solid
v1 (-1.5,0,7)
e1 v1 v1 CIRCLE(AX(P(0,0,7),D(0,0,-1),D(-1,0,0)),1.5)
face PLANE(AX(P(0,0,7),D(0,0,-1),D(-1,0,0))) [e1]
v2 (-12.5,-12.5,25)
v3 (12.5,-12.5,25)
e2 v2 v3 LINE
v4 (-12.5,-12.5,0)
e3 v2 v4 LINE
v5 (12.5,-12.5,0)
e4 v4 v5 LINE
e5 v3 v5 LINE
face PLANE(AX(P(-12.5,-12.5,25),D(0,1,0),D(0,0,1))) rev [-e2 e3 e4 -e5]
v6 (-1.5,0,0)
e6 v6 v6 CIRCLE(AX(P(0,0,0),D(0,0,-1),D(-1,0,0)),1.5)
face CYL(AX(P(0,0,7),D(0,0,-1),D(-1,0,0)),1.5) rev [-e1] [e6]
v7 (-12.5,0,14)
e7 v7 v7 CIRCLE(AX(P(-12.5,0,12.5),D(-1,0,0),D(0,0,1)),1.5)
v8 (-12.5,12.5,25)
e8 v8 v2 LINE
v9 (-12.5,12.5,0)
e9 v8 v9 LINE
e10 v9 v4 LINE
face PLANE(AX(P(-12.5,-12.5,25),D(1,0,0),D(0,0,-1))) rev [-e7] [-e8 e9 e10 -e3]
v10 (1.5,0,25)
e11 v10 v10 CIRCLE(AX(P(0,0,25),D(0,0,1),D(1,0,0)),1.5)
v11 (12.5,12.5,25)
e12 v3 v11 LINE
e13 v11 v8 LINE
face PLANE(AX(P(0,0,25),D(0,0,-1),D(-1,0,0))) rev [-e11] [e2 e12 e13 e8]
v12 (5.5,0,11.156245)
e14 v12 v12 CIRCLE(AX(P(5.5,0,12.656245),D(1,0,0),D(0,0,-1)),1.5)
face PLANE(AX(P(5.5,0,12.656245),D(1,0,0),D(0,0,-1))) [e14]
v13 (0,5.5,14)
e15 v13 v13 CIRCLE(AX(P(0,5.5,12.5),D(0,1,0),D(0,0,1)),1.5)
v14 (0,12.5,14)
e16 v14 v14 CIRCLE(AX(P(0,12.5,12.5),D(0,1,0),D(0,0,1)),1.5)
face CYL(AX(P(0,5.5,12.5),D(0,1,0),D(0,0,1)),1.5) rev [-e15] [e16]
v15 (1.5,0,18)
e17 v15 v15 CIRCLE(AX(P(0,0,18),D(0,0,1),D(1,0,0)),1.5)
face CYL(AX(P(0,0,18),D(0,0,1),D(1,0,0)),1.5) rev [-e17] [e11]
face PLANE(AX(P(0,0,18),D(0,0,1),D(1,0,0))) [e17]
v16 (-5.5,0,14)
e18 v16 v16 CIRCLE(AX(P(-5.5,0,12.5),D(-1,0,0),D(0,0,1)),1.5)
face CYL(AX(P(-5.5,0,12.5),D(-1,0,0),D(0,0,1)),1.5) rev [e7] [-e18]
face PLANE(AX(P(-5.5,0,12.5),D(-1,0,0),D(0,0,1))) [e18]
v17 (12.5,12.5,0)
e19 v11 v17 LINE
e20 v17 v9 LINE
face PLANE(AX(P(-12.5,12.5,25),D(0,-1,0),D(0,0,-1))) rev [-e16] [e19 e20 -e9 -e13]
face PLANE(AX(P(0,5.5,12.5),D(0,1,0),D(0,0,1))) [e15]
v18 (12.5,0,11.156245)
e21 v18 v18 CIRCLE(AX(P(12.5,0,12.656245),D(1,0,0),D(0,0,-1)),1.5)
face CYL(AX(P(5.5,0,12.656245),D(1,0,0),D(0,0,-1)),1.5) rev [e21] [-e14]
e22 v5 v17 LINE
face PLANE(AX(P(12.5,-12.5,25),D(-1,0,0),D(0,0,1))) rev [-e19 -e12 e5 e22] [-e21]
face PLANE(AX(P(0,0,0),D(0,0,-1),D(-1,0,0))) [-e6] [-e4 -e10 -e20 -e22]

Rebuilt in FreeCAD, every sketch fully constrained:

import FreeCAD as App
import Part
import Sketcher

V = App.Vector
Q = App.Units.Quantity


def add_polygon(sketch, points):
    """Adds a closed chain of lines whose ends are joined by coincident constraints."""
    first, n = sketch.GeometryCount, len(points)
    for a, b in zip(points, points[1:] + points[:1]):
        sketch.addGeometry(Part.LineSegment(App.Vector(*a, 0), App.Vector(*b, 0)), False)
    for i in range(n):
        sketch.addConstraint(Sketcher.Constraint("Coincident", first + i, 2, first + (i + 1) % n, 1))

doc = App.newDocument("Part")
params = doc.addObject("Spreadsheet::Sheet", "Params")
for row, (alias, value) in enumerate([
    ("sketch1_width", "25 mm"),
    ("pad1_length", "25 mm"),
    ("sketch2_diameter", "3 mm"),
    ("pocket1_length", "7 mm"),
    ("sketch3_diameter", "3 mm"),
    ("pocket2_length", "7 mm"),
    ("sketch4_diameter", "3 mm"),
    ("pocket3_length", "7 mm"),
    ("sketch5_diameter", "3 mm"),
    ("pocket4_length", "7 mm"),
    ("sketch6_diameter", "3 mm"),
    ("pocket5_length", "7 mm"),
], start=1):
    params.set(f"A{row}", alias)
    params.set(f"B{row}", "=" + value)
    params.setAlias(f"B{row}", alias)

body = doc.addObject("PartDesign::Body", "Body")

# Sketch on XY plane
sketch1 = doc.addObject("Sketcher::SketchObject", "Sketch")
body.addObject(sketch1)
sketch1.AttachmentSupport = (doc.XY_Plane, [""])
sketch1.MapMode = "FlatFace"
add_polygon(sketch1, [(-12, 12), (-12, -12), (12, -12), (12, 12)])  # lines 0-3
sketch1.addConstraint(Sketcher.Constraint("Vertical", 0))
sketch1.addConstraint(Sketcher.Constraint("Horizontal", 1))
sketch1.addConstraint(Sketcher.Constraint("Vertical", 2))
sketch1.addConstraint(Sketcher.Constraint("Horizontal", 3))
sketch1.addConstraint(Sketcher.Constraint("Symmetric", 0, 2, 2, 2, -1, 1))
sketch1.addConstraint(Sketcher.Constraint("Equal", 3, 0))
sketch1.addConstraint(Sketcher.Constraint("DistanceX", 1, 1, 1, 2, Q("25 mm")))
sketch1.setExpression("Constraints[10]", "Params.sketch1_width")
pad1 = doc.addObject("PartDesign::Pad", "Pad")
body.addObject(pad1)
pad1.Profile = sketch1
pad1.setExpression("Length", "Params.pad1_length")

# Sketch on XZ plane
sketch2 = doc.addObject("Sketcher::SketchObject", "Sketch001")
body.addObject(sketch2)
sketch2.AttachmentSupport = (doc.XZ_Plane, [""])
sketch2.MapMode = "FlatFace"
sketch2.AttachmentOffset = App.Placement(V(0, 0, -12.5), App.Rotation())
sketch2.addGeometry(Part.Circle(V(0, 12.5, 0), V(0, 0, 1), 1.5), False)
sketch2.addConstraint(Sketcher.Constraint("PointOnObject", 0, 3, -2))
sketch2.addConstraint(Sketcher.Constraint("Diameter", 0, Q("3 mm")))
sketch2.addConstraint(Sketcher.Constraint("DistanceY", -1, 1, 0, 3, Q("12.5 mm")))
sketch2.setExpression("Constraints[1]", "Params.sketch2_diameter")
pocket1 = doc.addObject("PartDesign::Pocket", "Pocket")
body.addObject(pocket1)
pocket1.Profile = sketch2
pocket1.setExpression("Length", "Params.pocket1_length")
pocket1.Reversed = True

# Sketch on XY plane
sketch3 = doc.addObject("Sketcher::SketchObject", "Sketch002")
body.addObject(sketch3)
sketch3.AttachmentSupport = (doc.XY_Plane, [""])
sketch3.MapMode = "FlatFace"
sketch3.AttachmentOffset = App.Placement(V(0, 0, 25), App.Rotation())
sketch3.addGeometry(Part.Circle(V(0, 0, 0), V(0, 0, 1), 1.5), False)
sketch3.addConstraint(Sketcher.Constraint("Coincident", 0, 3, -1, 1))
sketch3.addConstraint(Sketcher.Constraint("Diameter", 0, Q("3 mm")))
sketch3.setExpression("Constraints[1]", "Params.sketch3_diameter")
pocket2 = doc.addObject("PartDesign::Pocket", "Pocket001")
body.addObject(pocket2)
pocket2.Profile = sketch3
pocket2.setExpression("Length", "Params.pocket2_length")

# Sketch on YZ plane
sketch4 = doc.addObject("Sketcher::SketchObject", "Sketch003")
body.addObject(sketch4)
sketch4.AttachmentSupport = (doc.YZ_Plane, [""])
sketch4.MapMode = "FlatFace"
sketch4.AttachmentOffset = App.Placement(V(0, 0, 12.5), App.Rotation())
sketch4.addGeometry(Part.Circle(V(0, 12.7, 0), V(0, 0, 1), 1.5), False)
sketch4.addConstraint(Sketcher.Constraint("PointOnObject", 0, 3, -2))
sketch4.addConstraint(Sketcher.Constraint("Diameter", 0, Q("3 mm")))
sketch4.addConstraint(Sketcher.Constraint("DistanceY", -1, 1, 0, 3, Q("12.656245 mm")))
sketch4.setExpression("Constraints[1]", "Params.sketch4_diameter")
pocket3 = doc.addObject("PartDesign::Pocket", "Pocket002")
body.addObject(pocket3)
pocket3.Profile = sketch4
pocket3.setExpression("Length", "Params.pocket3_length")

# Sketch on XY plane
sketch5 = doc.addObject("Sketcher::SketchObject", "Sketch004")
body.addObject(sketch5)
sketch5.AttachmentSupport = (doc.XY_Plane, [""])
sketch5.MapMode = "FlatFace"
sketch5.AttachmentOffset = App.Placement(V(0, 0, 7), App.Rotation())
sketch5.addGeometry(Part.Circle(V(0, 0, 0), V(0, 0, 1), 1.5), False)
sketch5.addConstraint(Sketcher.Constraint("Coincident", 0, 3, -1, 1))
sketch5.addConstraint(Sketcher.Constraint("Diameter", 0, Q("3 mm")))
sketch5.setExpression("Constraints[1]", "Params.sketch5_diameter")
pocket4 = doc.addObject("PartDesign::Pocket", "Pocket003")
body.addObject(pocket4)
pocket4.Profile = sketch5
pocket4.setExpression("Length", "Params.pocket4_length")

# Sketch on YZ plane
sketch6 = doc.addObject("Sketcher::SketchObject", "Sketch005")
body.addObject(sketch6)
sketch6.AttachmentSupport = (doc.YZ_Plane, [""])
sketch6.MapMode = "FlatFace"
sketch6.AttachmentOffset = App.Placement(V(0, 0, -12.5), App.Rotation())
sketch6.addGeometry(Part.Circle(V(0, 12.5, 0), V(0, 0, 1), 1.5), False)
sketch6.addConstraint(Sketcher.Constraint("PointOnObject", 0, 3, -2))
sketch6.addConstraint(Sketcher.Constraint("Diameter", 0, Q("3 mm")))
sketch6.addConstraint(Sketcher.Constraint("DistanceY", -1, 1, 0, 3, Q("12.5 mm")))
sketch6.setExpression("Constraints[1]", "Params.sketch6_diameter")
pocket5 = doc.addObject("PartDesign::Pocket", "Pocket004")
body.addObject(pocket5)
pocket5.Profile = sketch6
pocket5.setExpression("Length", "Params.pocket5_length")
pocket5.Reversed = True

doc.recompute()
